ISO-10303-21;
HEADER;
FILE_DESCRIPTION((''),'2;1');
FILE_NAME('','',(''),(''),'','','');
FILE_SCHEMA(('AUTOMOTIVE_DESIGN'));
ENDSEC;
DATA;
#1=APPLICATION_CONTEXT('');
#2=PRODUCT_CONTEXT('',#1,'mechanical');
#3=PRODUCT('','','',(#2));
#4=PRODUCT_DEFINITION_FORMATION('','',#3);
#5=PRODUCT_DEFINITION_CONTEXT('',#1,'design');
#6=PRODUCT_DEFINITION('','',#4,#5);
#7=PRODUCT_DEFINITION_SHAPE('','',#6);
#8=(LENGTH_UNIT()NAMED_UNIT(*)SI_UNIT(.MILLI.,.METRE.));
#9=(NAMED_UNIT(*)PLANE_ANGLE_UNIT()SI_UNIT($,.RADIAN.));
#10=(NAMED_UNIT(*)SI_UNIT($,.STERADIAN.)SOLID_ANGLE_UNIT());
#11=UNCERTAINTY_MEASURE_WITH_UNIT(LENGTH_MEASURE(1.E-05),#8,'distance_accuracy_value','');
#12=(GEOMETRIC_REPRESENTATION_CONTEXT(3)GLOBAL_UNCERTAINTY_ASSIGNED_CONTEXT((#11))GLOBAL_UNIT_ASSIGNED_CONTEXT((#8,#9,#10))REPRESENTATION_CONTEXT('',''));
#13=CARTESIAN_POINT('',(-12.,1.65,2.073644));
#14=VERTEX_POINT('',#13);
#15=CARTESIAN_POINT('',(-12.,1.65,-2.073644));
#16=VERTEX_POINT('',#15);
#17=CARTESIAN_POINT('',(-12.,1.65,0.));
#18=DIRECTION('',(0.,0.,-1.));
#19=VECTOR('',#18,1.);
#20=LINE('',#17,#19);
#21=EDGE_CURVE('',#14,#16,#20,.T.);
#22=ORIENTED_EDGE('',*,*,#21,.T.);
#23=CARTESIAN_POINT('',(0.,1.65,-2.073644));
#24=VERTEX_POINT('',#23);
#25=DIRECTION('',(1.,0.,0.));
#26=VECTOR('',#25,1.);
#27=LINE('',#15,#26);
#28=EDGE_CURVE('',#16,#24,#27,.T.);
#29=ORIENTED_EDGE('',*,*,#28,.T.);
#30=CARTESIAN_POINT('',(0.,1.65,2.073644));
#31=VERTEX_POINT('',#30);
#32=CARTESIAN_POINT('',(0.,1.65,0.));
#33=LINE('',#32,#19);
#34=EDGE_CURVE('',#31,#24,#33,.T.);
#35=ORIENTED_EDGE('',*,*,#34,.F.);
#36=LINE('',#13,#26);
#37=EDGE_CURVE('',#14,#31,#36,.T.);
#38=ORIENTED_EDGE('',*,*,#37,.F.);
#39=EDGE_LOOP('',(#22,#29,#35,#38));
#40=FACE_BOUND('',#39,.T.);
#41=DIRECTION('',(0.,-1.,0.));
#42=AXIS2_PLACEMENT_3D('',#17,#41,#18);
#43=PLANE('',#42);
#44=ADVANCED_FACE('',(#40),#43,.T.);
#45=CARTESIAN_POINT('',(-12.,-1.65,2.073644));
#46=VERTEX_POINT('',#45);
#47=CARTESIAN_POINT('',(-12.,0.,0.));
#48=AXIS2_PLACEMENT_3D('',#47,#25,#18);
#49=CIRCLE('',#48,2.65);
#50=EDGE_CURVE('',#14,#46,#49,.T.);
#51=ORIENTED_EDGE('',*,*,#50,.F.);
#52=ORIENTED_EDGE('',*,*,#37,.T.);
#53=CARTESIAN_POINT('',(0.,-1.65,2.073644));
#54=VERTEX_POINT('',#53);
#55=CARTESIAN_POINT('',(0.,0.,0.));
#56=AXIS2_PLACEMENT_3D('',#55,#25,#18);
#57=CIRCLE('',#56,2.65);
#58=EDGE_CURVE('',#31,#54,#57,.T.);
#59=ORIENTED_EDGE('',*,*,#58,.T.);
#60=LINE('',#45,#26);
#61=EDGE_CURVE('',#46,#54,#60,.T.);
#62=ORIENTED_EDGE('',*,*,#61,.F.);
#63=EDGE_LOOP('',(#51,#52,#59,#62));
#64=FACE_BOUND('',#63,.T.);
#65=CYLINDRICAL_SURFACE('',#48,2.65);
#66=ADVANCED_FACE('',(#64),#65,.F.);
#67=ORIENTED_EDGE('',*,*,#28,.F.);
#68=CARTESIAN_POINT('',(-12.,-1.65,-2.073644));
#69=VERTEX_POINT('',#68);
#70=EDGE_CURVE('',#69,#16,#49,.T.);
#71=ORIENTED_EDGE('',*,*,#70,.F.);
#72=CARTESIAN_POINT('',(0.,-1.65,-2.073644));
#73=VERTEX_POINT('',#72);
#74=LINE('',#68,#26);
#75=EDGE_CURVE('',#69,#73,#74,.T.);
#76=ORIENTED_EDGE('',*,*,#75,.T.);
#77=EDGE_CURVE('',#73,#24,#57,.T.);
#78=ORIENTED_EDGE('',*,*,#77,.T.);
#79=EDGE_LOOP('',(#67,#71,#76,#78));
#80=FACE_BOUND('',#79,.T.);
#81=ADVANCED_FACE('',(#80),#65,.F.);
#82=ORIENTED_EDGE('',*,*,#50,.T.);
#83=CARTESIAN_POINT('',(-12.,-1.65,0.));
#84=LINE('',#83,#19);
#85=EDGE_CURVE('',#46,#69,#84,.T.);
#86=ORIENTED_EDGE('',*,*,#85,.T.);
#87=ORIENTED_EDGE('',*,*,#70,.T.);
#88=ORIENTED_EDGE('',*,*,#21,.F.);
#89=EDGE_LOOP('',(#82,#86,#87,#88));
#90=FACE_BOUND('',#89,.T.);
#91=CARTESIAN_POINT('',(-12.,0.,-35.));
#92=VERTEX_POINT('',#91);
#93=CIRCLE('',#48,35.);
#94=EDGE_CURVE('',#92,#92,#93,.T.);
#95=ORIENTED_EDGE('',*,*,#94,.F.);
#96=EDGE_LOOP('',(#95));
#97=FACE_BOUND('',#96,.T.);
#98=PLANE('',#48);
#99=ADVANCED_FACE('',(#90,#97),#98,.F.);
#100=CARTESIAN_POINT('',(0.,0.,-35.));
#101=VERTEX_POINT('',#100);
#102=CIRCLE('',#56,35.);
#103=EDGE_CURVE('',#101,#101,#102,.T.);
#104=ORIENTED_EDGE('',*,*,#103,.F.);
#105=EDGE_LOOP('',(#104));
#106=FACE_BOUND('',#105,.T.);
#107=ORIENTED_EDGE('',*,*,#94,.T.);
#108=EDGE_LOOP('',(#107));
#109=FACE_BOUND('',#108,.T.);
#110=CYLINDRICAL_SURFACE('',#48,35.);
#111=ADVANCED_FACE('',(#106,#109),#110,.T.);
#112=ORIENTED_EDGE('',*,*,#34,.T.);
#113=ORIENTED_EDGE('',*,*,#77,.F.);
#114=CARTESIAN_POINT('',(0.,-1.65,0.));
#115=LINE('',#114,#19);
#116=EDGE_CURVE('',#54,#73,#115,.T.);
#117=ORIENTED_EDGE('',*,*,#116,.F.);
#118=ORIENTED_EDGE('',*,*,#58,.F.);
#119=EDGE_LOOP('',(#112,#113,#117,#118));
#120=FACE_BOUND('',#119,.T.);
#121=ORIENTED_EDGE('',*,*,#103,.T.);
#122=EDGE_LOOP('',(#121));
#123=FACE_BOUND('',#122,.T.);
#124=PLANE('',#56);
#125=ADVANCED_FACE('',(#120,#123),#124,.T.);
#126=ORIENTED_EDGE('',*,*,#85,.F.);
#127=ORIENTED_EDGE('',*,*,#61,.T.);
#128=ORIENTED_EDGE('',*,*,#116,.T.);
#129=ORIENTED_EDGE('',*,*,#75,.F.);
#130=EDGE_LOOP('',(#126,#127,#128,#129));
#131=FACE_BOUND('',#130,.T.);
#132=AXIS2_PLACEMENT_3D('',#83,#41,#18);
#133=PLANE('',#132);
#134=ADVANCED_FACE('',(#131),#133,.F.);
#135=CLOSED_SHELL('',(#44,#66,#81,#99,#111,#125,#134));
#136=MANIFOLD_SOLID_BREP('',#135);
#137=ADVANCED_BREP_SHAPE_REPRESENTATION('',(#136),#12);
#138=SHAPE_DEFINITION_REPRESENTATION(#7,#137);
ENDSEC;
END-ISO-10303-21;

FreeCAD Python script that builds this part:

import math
import FreeCAD as App
import Part
import Sketcher
from FreeCAD import Vector
Q = App.Units.Quantity

doc = App.newDocument("Part")
body = doc.addObject("PartDesign::Body", "Body")

# Sketch on YZ plane
sketch1 = doc.addObject("Sketcher::SketchObject", "Sketch")
body.addObject(sketch1)
sketch1.AttachmentSupport = (doc.YZ_Plane, [""])
sketch1.MapMode = "FlatFace"
sketch1.addGeometry(Part.Circle(Vector(0, 0, 0), Vector(0, 0, 1), 35), False)
sketch1.addGeometry(Part.ArcOfCircle(Part.Circle(Vector(0, 0, 0), Vector(0, 0, 1), 2.6), math.radians(51), math.radians(129)), False)
sketch1.addGeometry(Part.LineSegment(Vector(1.6, 2.1, 0), Vector(1.6, -2.1, 0)), False)
sketch1.addGeometry(Part.ArcOfCircle(Part.Circle(Vector(0, 0, 0), Vector(0, 0, 1), 2.6), math.radians(-129), math.radians(-51)), False)
sketch1.addGeometry(Part.LineSegment(Vector(-1.6, -2.1, 0), Vector(-1.6, 2.1, 0)), False)
sketch1.addConstraint(Sketcher.Constraint("Coincident", 1, 1, 2, 1))
sketch1.addConstraint(Sketcher.Constraint("Coincident", 2, 2, 3, 2))
sketch1.addConstraint(Sketcher.Constraint("Coincident", 3, 1, 4, 1))
sketch1.addConstraint(Sketcher.Constraint("Coincident", 4, 2, 1, 2))
sketch1.addConstraint(Sketcher.Constraint("Vertical", 2))
sketch1.addConstraint(Sketcher.Constraint("Vertical", 4))
sketch1.addConstraint(Sketcher.Constraint("Coincident", 0, 3, -1, 1))
sketch1.addConstraint(Sketcher.Constraint("Coincident", 1, 3, -1, 1))
sketch1.addConstraint(Sketcher.Constraint("Coincident", 3, 3, -1, 1))
sketch1.addConstraint(Sketcher.Constraint("Equal", 1, 3))
sketch1.addConstraint(Sketcher.Constraint("Horizontal", 2, 2, 3, 1))
sketch1.addConstraint(Sketcher.Constraint("Diameter", 0, Q("70 mm")))
sketch1.addConstraint(Sketcher.Constraint("Radius", 1, Q("2.65 mm")))
sketch1.addConstraint(Sketcher.Constraint("DistanceX", 3, 1, 2, 2, Q("3.3 mm")))
pad1 = doc.addObject("PartDesign::Pad", "Pad")
body.addObject(pad1)
pad1.Profile = sketch1
pad1.Length = 12
pad1.Reversed = True

doc.recompute()
